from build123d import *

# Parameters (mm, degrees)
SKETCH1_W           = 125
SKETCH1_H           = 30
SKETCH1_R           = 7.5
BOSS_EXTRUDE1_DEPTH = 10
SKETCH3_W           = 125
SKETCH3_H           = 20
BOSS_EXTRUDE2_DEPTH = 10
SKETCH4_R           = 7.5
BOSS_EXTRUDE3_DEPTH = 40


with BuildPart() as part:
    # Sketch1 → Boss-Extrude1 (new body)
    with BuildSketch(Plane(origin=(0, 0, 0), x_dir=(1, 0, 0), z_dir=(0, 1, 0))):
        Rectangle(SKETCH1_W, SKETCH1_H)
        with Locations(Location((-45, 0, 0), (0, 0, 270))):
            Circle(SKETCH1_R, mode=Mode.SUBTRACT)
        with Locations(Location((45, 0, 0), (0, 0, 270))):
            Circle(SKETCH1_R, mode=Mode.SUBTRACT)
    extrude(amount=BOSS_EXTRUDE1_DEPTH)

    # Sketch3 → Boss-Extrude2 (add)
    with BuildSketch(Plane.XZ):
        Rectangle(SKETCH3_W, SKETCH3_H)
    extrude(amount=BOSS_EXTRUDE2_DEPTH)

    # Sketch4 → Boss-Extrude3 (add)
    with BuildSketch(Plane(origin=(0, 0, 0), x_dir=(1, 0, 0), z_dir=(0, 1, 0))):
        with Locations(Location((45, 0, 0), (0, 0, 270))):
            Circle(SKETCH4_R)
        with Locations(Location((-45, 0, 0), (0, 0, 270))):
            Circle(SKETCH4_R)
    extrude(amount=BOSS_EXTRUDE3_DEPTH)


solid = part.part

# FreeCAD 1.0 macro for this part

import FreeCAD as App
import Part
import Sketcher

V = App.Vector


def add_polygon(sketch, points):
    """Adds a closed chain of lines whose ends are joined by coincident constraints."""
    first, n = sketch.GeometryCount, len(points)
    for a, b in zip(points, points[1:] + points[:1]):
        sketch.addGeometry(Part.LineSegment(App.Vector(*a, 0), App.Vector(*b, 0)), False)
    for i in range(n):
        sketch.addConstraint(Sketcher.Constraint("Coincident", first + i, 2, first + (i + 1) % n, 1))

doc = App.newDocument("Part")
body = doc.addObject("PartDesign::Body", "Body")

sketch1 = body.newObject("Sketcher::SketchObject", "Sketch")
sketch1.AttachmentSupport = (doc.getObject("XZ_Plane"), [""])
sketch1.MapMode = "FlatFace"
add_polygon(sketch1, [(-62, -15), (-62, 15), (62, 15), (62, -15)])
sketch1.addGeometry(Part.Circle(V(-45, 0, 0), V(0, 0, 1), 8), False)
sketch1.addGeometry(Part.Circle(V(45, 0, 0), V(0, 0, 1), 8), False)
sketch1.addConstraint([
    Sketcher.Constraint("Vertical", 0),
    Sketcher.Constraint("Horizontal", 1),
    Sketcher.Constraint("Vertical", 2),
    Sketcher.Constraint("Horizontal", 3),
    Sketcher.Constraint("Equal", 4, 5),
    Sketcher.Constraint("Symmetric", 4, 3, 5, 3, -1, 1),
    Sketcher.Constraint("Symmetric", 0, 2, 2, 2, -1, 1),
    Sketcher.Constraint("PointOnObject", 4, 3, -1),
    Sketcher.Constraint("Diameter", 4, 15.0),
    Sketcher.Constraint("DistanceX", 1, 1, 1, 2, 125.0),
    Sketcher.Constraint("DistanceY", 0, 1, 0, 2, 30.0),
    Sketcher.Constraint("DistanceX", 4, 3, -1, 1, 45.0),
])
pad1 = body.newObject("PartDesign::Pad", "Pad")
pad1.Profile = sketch1
pad1.Length = 10
pad1.Reversed = True

sketch2 = body.newObject("Sketcher::SketchObject", "Sketch001")
sketch2.AttachmentSupport = (doc.getObject("XZ_Plane"), [""])
sketch2.MapMode = "FlatFace"
add_polygon(sketch2, [(-62, 10), (-62, -10), (62, -10), (62, 10)])
sketch2.addConstraint([
    Sketcher.Constraint("Vertical", 0),
    Sketcher.Constraint("Horizontal", 1),
    Sketcher.Constraint("Vertical", 2),
    Sketcher.Constraint("Horizontal", 3),
    Sketcher.Constraint("Symmetric", 0, 2, 2, 2, -1, 1),
    Sketcher.Constraint("DistanceX", 1, 1, 1, 2, 125.0),
    Sketcher.Constraint("DistanceY", 0, 2, 0, 1, 20.0),
])
pad2 = body.newObject("PartDesign::Pad", "Pad001")
pad2.Profile = sketch2
pad2.Length = 10

sketch3 = body.newObject("Sketcher::SketchObject", "Sketch002")
sketch3.AttachmentSupport = (doc.getObject("XZ_Plane"), [""])
sketch3.MapMode = "FlatFace"
sketch3.addGeometry([
    Part.Circle(V(45, 0, 0), V(0, 0, 1), 8),
    Part.Circle(V(-45, 0, 0), V(0, 0, 1), 8),
], False)
sketch3.addConstraint([
    Sketcher.Constraint("Equal", 0, 1),
    Sketcher.Constraint("Symmetric", 0, 3, 1, 3, -1, 1),
    Sketcher.Constraint("PointOnObject", 0, 3, -1),
    Sketcher.Constraint("Diameter", 0, 15.0),
    Sketcher.Constraint("DistanceX", -1, 1, 0, 3, 45.0),
])
pad3 = body.newObject("PartDesign::Pad", "Pad002")
pad3.Profile = sketch3
pad3.Length = 40
pad3.Reversed = True

doc.recompute()
